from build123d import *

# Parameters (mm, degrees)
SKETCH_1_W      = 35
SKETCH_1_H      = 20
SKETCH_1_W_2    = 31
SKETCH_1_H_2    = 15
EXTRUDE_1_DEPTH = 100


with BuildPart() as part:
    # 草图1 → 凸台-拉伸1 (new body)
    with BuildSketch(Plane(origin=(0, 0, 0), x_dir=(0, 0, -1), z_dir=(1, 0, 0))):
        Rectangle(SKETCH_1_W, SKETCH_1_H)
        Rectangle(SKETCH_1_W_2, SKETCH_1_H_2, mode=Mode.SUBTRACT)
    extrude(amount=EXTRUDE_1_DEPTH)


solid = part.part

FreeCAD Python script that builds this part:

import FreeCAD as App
import Part
import Sketcher
from FreeCAD import Vector


def add_polygon(sketch, points):
    """Adds a closed chain of lines whose ends are joined by coincident constraints."""
    first, n = sketch.GeometryCount, len(points)
    for a, b in zip(points, points[1:] + points[:1]):
        sketch.addGeometry(Part.LineSegment(App.Vector(*a, 0), App.Vector(*b, 0)), False)
    for i in range(n):
        sketch.addConstraint(Sketcher.Constraint("Coincident", first + i, 2, first + (i + 1) % n, 1))

doc = App.newDocument("Part")
body = doc.addObject("PartDesign::Body", "Body")

sketch1 = body.newObject("Sketcher::SketchObject", "Sketch")
sketch1.AttachmentSupport = (doc.getObject("YZ_Plane"), [""])
sketch1.MapMode = "FlatFace"
add_polygon(sketch1, [(10, 17.5), (-10, 17.5), (-10, -17.5), (10, -17.5)])
add_polygon(sketch1, [(-7.5, -15.5), (-7.5, 15.5), (7.5, 15.5), (7.5, -15.5)])
sketch1.addConstraint([
    Sketcher.Constraint("Horizontal", 0),
    Sketcher.Constraint("Vertical", 1),
    Sketcher.Constraint("Horizontal", 2),
    Sketcher.Constraint("Vertical", 3),
    Sketcher.Constraint("Vertical", 4),
    Sketcher.Constraint("Horizontal", 5),
    Sketcher.Constraint("Vertical", 6),
    Sketcher.Constraint("Horizontal", 7),
    Sketcher.Constraint("Symmetric", 0, 2, 2, 2, -1, 1),
    Sketcher.Constraint("Symmetric", 4, 2, 6, 2, -1, 1),
    Sketcher.Constraint("DistanceX", 0, 2, 0, 1, 20.0),
    Sketcher.Constraint("DistanceX", 5, 1, 5, 2, 15.0),
    Sketcher.Constraint("DistanceY", 1, 2, 1, 1, 35.0),
    Sketcher.Constraint("DistanceY", 4, 1, 4, 2, 31.0),
])
pad1 = body.newObject("PartDesign::Pad", "Pad")
pad1.Profile = sketch1
pad1.Length = 100

doc.recompute()
